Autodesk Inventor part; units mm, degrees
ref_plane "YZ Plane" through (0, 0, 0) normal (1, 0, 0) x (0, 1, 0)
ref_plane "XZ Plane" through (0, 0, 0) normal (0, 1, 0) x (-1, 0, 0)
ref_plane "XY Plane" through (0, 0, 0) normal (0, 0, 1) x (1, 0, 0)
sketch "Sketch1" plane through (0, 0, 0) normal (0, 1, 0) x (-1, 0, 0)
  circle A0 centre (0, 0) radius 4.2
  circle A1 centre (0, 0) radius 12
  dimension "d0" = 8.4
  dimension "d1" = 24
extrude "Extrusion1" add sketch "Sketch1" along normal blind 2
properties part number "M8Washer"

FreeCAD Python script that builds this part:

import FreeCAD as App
import Part
import Sketcher
from FreeCAD import Vector

doc = App.newDocument("Part")
body = doc.addObject("PartDesign::Body", "Body")

sketch1 = doc.addObject("Sketcher::SketchObject", "Sketch")
body.addObject(sketch1)
sketch1.AttachmentSupport = (doc.XZ_Plane, [""])
sketch1.MapMode = "FlatFace"
sketch1.addGeometry([
    Part.Circle(Vector(0, 0, 0), Vector(0, 0, 1), 12),
    Part.Circle(Vector(0, 0, 0), Vector(0, 0, 1), 4.2),
], False)
sketch1.addConstraint([
    Sketcher.Constraint("Coincident", 0, 3, -1, 1),
    Sketcher.Constraint("Coincident", 1, 3, -1, 1),
    Sketcher.Constraint("Diameter", 0, 24.0),
    Sketcher.Constraint("Diameter", 1, 8.4),
])
pad1 = doc.addObject("PartDesign::Pad", "Pad")
body.addObject(pad1)
pad1.Profile = sketch1
pad1.Length = 2
pad1.Reversed = True

doc.recompute()
